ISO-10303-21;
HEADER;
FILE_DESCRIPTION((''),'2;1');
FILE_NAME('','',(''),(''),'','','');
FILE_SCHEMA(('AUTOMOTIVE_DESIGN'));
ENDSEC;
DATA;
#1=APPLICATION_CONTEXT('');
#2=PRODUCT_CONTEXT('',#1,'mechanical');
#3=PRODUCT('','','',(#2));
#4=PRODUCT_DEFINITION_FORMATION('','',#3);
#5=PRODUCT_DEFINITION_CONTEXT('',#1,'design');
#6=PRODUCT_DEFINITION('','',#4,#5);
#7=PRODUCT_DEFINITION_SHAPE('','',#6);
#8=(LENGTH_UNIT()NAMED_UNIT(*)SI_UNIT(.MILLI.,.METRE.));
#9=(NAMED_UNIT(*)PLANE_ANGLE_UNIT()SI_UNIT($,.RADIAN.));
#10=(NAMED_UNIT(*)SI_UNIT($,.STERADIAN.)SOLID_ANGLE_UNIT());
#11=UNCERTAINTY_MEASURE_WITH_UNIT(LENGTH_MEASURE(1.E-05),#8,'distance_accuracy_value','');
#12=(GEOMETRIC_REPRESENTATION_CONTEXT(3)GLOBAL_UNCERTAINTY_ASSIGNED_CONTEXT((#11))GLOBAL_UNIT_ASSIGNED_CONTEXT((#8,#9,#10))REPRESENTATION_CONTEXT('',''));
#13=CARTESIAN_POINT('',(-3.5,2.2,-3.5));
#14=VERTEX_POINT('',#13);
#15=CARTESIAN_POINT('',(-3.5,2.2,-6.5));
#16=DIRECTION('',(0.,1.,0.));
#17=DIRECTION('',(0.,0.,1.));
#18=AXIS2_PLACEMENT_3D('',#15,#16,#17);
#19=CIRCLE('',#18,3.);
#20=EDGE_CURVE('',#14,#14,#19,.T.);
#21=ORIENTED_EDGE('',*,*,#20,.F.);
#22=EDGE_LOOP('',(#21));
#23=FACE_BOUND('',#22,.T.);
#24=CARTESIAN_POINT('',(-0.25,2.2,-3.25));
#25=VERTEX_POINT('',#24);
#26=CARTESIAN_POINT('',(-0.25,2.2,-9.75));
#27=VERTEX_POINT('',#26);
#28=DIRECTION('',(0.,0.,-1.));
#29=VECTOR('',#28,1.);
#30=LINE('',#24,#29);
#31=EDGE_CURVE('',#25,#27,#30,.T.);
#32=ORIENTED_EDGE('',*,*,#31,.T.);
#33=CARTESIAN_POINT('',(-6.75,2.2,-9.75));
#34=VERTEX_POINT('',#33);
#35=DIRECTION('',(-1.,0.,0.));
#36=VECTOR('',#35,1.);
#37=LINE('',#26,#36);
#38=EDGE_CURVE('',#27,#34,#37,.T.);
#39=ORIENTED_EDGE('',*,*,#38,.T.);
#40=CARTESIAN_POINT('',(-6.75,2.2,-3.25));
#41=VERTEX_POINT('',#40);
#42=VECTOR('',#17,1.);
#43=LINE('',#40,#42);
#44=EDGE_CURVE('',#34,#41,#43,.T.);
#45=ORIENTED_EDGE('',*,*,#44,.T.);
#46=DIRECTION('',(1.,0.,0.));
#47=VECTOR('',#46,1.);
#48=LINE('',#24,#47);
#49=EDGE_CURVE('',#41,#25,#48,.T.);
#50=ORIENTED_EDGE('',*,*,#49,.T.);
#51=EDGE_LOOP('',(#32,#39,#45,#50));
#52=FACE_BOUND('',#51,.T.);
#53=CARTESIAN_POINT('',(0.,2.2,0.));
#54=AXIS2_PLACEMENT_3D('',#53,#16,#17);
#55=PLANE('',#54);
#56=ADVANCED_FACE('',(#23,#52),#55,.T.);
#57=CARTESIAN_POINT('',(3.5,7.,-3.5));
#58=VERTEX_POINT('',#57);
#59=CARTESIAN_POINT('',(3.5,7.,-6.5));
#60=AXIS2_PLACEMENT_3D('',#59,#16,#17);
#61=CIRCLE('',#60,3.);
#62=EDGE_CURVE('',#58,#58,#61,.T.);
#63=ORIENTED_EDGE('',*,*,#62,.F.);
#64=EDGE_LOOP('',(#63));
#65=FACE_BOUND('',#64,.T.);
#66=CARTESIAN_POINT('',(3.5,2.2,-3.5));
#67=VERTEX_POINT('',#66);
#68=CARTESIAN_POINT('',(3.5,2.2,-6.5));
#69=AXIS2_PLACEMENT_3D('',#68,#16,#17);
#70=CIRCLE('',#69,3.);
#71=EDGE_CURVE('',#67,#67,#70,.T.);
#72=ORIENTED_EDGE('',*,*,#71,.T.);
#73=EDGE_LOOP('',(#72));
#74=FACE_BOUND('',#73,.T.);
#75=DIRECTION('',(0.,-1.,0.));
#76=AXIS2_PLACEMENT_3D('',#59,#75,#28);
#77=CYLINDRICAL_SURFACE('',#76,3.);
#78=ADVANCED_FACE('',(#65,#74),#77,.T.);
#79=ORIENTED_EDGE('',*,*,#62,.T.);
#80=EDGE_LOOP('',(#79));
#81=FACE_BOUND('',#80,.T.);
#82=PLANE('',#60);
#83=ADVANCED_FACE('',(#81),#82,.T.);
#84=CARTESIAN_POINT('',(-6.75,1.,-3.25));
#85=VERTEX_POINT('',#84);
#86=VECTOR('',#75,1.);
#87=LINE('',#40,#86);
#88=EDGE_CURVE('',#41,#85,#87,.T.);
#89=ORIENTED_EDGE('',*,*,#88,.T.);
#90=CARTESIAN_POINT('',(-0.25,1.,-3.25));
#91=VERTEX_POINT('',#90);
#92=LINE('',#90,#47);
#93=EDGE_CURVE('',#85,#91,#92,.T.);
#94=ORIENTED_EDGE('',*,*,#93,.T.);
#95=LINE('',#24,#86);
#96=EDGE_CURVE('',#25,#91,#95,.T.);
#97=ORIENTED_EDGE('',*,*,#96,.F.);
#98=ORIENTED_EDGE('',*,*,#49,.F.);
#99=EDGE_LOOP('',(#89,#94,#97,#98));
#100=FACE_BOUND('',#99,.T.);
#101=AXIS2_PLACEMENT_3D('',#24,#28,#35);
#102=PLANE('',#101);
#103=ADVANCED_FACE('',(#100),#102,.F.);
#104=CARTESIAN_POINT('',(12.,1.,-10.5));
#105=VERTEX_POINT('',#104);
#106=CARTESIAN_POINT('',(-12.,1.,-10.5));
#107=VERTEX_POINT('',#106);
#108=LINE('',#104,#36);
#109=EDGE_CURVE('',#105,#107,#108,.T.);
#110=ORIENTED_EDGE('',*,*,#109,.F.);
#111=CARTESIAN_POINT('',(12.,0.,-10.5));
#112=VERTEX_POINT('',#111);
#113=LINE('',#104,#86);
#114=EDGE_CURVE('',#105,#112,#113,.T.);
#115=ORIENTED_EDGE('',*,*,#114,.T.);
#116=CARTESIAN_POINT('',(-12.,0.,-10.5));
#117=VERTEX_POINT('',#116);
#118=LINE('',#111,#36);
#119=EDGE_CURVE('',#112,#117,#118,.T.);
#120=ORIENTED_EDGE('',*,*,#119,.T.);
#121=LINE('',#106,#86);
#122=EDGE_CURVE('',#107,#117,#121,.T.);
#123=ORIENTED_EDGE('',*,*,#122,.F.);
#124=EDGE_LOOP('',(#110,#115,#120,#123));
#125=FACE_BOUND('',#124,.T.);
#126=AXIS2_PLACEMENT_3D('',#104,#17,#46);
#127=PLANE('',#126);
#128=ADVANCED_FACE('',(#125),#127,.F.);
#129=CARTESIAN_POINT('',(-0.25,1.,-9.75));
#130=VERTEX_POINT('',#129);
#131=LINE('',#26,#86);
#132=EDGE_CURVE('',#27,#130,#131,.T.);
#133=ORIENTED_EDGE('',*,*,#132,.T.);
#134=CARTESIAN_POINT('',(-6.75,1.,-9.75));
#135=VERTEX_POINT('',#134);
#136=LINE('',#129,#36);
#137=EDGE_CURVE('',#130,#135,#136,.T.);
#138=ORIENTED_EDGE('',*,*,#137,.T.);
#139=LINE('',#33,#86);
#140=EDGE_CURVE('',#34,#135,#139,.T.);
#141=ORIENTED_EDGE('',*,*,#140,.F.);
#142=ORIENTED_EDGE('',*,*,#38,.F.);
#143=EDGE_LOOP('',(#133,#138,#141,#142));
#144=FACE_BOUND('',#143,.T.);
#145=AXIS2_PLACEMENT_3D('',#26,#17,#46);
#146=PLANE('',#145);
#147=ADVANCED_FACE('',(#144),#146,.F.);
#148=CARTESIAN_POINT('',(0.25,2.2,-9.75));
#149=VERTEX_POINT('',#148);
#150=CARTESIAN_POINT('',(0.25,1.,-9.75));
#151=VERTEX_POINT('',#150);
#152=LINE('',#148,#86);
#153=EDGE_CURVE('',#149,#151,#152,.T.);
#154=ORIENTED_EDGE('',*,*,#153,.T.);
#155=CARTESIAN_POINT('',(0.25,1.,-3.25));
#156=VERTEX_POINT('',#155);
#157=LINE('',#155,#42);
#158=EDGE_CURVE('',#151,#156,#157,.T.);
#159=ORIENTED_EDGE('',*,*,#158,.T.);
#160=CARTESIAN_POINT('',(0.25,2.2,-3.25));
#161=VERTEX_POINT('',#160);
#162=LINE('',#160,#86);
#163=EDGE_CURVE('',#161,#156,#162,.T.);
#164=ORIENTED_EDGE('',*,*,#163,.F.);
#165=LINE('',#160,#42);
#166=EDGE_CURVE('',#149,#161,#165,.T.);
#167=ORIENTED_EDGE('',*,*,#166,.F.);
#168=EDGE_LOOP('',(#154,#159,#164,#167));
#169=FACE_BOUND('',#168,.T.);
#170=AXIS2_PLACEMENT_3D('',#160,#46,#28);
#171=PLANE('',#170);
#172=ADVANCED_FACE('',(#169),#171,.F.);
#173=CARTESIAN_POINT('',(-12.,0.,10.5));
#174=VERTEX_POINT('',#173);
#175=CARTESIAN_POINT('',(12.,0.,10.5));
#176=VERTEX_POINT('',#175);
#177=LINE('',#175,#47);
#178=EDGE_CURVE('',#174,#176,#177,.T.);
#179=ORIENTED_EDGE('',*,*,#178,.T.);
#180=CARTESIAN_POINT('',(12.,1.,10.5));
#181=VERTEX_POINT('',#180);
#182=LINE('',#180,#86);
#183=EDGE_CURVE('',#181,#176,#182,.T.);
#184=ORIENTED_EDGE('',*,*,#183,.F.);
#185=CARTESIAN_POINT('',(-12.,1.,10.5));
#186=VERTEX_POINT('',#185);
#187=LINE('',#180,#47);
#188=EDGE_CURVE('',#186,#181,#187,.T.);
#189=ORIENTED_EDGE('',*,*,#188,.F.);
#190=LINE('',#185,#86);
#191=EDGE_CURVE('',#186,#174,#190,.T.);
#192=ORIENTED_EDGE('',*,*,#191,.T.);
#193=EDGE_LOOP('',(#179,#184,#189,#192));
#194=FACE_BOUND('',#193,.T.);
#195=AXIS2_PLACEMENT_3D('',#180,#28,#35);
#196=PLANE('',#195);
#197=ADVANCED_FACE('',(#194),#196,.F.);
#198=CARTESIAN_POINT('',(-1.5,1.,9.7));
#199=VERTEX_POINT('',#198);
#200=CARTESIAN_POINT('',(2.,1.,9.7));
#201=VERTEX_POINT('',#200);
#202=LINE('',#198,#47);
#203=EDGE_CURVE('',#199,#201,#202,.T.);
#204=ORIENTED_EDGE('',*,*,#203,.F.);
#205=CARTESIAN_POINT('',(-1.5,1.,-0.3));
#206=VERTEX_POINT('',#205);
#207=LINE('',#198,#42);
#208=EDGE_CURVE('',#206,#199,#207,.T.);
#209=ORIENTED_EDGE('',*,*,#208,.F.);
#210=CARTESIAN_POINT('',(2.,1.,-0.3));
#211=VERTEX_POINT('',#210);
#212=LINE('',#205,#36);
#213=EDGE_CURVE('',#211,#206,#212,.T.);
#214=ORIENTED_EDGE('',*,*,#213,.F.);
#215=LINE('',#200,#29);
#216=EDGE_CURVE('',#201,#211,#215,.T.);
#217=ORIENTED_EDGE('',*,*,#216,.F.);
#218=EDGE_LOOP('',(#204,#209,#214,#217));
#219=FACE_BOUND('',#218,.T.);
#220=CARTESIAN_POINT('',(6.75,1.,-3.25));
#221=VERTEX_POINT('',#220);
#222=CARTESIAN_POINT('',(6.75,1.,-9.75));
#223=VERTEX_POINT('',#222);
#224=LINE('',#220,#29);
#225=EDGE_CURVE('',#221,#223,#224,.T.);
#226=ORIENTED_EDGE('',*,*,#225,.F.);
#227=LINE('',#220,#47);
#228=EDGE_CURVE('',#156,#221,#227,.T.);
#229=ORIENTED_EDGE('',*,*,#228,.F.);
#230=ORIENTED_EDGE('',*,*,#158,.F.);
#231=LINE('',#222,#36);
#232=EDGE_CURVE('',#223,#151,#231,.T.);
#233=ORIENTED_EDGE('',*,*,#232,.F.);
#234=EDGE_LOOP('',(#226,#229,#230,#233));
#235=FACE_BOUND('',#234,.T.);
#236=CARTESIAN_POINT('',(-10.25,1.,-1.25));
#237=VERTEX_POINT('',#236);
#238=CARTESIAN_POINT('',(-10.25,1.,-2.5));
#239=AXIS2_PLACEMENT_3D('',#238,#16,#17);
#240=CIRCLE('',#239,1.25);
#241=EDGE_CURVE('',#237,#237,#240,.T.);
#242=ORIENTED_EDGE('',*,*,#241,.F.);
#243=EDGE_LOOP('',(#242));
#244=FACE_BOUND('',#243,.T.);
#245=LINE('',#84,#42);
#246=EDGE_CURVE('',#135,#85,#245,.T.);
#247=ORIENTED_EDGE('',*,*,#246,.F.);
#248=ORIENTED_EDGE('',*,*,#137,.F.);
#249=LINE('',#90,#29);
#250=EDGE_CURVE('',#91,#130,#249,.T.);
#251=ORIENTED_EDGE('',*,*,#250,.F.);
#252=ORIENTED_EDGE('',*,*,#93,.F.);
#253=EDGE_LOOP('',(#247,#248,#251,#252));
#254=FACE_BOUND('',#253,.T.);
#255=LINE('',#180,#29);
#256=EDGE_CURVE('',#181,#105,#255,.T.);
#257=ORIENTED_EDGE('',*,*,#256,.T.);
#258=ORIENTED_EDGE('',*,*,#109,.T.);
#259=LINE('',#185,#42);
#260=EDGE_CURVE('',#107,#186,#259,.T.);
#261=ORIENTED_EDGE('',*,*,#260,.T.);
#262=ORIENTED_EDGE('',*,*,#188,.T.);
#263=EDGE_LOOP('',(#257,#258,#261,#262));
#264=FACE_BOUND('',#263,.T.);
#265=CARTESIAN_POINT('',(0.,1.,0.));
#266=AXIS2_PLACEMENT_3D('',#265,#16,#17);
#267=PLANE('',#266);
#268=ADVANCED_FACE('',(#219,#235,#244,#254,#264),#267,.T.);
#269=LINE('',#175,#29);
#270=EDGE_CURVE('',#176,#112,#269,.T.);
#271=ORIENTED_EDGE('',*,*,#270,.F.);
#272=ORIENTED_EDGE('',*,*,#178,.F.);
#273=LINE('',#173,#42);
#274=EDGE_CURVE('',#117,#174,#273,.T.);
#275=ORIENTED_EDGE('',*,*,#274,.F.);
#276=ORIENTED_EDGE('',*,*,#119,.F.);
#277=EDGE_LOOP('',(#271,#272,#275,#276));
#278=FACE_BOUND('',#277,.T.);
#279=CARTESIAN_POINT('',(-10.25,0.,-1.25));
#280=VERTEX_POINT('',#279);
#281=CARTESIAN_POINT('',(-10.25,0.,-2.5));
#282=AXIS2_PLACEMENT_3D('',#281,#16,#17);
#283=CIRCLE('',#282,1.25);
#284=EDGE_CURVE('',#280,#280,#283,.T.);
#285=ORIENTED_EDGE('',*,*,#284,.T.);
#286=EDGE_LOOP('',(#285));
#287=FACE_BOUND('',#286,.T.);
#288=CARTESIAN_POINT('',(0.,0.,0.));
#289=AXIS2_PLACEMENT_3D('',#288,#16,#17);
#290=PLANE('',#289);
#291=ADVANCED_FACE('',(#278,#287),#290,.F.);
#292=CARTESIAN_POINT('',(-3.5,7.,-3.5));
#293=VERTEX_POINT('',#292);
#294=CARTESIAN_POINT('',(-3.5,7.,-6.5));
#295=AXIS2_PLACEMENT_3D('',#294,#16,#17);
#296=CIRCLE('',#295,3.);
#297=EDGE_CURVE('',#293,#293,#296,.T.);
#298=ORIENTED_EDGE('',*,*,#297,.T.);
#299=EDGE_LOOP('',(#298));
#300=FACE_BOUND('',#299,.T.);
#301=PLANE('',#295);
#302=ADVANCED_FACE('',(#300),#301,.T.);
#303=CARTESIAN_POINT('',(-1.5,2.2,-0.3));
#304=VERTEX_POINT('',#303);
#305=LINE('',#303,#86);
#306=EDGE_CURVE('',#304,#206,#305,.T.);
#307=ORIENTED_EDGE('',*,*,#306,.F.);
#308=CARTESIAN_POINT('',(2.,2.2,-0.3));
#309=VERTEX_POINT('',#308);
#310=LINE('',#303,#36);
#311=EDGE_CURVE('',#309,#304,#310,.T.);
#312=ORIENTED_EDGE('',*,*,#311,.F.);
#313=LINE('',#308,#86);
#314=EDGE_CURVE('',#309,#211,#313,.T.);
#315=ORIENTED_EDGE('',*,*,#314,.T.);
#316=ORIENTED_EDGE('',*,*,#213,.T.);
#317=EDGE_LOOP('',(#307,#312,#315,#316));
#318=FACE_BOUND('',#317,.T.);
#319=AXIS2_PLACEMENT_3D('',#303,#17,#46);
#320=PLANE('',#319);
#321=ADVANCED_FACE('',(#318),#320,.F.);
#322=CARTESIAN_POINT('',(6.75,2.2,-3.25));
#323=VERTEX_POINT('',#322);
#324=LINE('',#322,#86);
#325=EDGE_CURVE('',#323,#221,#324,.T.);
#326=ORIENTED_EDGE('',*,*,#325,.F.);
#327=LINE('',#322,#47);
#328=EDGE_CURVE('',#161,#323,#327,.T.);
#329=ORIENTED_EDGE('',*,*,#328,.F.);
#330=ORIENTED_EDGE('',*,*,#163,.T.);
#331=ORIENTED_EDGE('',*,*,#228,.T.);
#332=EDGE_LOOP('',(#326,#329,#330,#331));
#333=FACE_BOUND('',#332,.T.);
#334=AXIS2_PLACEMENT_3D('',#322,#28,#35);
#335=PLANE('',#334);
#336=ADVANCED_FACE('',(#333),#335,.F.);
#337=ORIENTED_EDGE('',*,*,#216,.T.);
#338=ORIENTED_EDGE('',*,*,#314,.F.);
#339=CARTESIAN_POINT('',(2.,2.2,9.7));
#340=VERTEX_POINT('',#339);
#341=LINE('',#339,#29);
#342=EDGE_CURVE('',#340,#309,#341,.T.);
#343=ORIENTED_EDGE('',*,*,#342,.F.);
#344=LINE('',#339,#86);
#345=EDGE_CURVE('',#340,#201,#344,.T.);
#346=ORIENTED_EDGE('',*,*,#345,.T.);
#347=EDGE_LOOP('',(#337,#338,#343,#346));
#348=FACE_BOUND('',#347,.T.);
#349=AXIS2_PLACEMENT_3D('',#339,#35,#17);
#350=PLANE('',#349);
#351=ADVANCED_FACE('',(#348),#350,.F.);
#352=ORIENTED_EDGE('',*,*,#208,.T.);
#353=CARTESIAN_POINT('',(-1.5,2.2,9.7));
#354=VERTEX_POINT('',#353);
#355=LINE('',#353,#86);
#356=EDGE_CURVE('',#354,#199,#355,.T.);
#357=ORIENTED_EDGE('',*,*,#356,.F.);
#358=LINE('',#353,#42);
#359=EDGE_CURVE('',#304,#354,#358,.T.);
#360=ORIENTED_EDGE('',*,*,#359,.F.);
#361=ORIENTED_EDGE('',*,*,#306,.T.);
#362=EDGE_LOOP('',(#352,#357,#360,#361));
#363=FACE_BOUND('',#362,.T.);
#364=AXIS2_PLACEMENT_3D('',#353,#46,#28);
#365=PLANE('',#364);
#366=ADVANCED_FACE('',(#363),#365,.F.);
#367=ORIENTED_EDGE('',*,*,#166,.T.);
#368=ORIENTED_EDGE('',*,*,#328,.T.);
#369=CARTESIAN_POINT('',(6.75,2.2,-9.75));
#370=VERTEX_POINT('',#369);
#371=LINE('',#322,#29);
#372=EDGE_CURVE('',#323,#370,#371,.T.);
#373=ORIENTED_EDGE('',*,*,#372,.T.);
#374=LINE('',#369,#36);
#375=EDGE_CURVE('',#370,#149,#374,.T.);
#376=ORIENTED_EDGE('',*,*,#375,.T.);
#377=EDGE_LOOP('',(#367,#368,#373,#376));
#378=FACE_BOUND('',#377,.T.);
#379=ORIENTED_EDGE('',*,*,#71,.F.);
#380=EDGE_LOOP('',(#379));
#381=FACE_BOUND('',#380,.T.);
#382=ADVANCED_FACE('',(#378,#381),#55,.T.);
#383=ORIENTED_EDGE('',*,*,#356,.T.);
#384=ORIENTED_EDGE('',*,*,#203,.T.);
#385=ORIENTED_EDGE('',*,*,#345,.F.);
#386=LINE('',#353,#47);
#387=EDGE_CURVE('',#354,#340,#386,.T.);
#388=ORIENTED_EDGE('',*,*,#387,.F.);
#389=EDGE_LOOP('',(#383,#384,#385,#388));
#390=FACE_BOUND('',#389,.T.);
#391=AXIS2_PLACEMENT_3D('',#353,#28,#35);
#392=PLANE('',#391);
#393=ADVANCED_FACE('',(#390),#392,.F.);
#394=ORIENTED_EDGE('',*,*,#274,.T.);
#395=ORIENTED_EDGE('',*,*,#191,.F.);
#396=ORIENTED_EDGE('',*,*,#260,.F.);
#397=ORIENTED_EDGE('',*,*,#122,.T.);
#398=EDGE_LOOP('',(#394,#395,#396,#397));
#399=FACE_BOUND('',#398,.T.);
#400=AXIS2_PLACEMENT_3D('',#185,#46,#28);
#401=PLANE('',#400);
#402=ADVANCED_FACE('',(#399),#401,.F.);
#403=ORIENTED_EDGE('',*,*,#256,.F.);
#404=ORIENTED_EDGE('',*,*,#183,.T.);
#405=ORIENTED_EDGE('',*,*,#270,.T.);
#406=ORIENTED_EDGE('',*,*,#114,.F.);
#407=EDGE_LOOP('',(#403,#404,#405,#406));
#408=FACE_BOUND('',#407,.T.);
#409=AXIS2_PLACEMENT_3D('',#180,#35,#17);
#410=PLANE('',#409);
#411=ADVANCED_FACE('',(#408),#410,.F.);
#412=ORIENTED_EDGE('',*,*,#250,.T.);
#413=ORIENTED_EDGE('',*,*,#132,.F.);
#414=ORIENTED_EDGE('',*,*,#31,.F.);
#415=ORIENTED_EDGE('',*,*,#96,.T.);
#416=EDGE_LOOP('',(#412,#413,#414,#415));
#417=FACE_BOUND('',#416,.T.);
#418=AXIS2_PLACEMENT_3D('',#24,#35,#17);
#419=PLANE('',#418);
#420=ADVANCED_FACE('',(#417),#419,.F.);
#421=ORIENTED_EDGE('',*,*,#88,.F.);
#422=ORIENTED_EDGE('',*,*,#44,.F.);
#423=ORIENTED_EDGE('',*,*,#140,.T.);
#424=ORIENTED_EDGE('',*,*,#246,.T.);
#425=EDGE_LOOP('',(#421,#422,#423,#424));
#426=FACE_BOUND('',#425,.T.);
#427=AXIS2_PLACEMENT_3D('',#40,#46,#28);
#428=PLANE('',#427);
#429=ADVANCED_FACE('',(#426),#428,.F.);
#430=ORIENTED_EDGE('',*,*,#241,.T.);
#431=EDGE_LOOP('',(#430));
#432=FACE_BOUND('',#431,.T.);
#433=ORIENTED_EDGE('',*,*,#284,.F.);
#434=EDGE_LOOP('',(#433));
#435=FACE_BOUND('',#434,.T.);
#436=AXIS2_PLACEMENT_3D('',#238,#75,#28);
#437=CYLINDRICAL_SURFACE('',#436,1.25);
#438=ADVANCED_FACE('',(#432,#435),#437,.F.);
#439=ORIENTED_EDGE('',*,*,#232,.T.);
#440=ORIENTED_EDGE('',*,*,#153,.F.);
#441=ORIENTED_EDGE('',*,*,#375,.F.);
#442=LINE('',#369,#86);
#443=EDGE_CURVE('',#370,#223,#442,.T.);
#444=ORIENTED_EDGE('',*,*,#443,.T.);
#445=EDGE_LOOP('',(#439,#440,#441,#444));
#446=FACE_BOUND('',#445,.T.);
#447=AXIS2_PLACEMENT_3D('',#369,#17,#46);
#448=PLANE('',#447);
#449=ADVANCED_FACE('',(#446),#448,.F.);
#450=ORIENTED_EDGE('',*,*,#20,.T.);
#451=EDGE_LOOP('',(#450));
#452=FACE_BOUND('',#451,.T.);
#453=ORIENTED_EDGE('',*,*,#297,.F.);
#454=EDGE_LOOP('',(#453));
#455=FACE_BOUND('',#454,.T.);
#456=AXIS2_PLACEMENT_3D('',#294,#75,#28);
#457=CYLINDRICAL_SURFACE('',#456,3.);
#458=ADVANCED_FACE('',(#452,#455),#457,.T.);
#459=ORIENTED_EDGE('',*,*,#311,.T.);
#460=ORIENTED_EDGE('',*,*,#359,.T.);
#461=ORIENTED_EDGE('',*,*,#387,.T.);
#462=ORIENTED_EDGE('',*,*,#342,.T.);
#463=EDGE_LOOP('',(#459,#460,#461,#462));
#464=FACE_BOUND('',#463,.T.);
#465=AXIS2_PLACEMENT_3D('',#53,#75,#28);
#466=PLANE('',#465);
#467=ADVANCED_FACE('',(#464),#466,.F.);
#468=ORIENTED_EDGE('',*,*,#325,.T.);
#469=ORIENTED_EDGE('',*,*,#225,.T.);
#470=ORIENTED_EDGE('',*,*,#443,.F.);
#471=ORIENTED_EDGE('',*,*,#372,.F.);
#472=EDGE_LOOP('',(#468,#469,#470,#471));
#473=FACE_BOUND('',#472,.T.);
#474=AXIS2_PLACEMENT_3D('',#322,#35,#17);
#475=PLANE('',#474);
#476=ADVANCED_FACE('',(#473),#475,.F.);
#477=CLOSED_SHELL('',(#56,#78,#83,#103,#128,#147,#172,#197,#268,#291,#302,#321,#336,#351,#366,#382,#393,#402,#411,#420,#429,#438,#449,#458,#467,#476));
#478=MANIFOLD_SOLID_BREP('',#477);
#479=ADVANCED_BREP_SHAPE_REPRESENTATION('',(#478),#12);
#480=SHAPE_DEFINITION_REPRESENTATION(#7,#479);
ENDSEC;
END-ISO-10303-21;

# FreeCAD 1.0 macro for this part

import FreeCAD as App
import Part
import Sketcher

V = App.Vector
Q = App.Units.Quantity


def add_polygon(sketch, points):
    """Adds a closed chain of lines whose ends are joined by coincident constraints."""
    first, n = sketch.GeometryCount, len(points)
    for a, b in zip(points, points[1:] + points[:1]):
        sketch.addGeometry(Part.LineSegment(App.Vector(*a, 0), App.Vector(*b, 0)), False)
    for i in range(n):
        sketch.addConstraint(Sketcher.Constraint("Coincident", first + i, 2, first + (i + 1) % n, 1))

doc = App.newDocument("Part")
params = doc.addObject("Spreadsheet::Sheet", "Params")
for row, (alias, value) in enumerate([
    ("sketch1_diameter", "2.5 mm"),
    ("sketch1_width", "24 mm"),
    ("sketch1_height", "21 mm"),
    ("pad1_length", "1 mm"),
    ("sketch2_diameter", "6 mm"),
    ("pad2_length", "6 mm"),
    ("sketch3_height", "10 mm"),
    ("sketch3_width", "6.5 mm"),
    ("sketch3_width2", "3.5 mm"),
    ("pad3_length", "1.2 mm"),
], start=1):
    params.set(f"A{row}", alias)
    params.set(f"B{row}", "=" + value)
    params.setAlias(f"B{row}", alias)

body = doc.addObject("PartDesign::Body", "Body")

# Sketch on XZ plane
sketch1 = body.newObject("Sketcher::SketchObject", "Sketch")
sketch1.AttachmentSupport = (doc.getObject("XZ_Plane"), [""])
sketch1.MapMode = "FlatFace"
add_polygon(sketch1, [(-12, -10.5), (-12, 10.5), (12, 10.5), (12, -10.5)])  # lines 0-3
sketch1.addGeometry(Part.Circle(V(-10.2, -2.5, 0), V(0, 0, 1), 1.2), False)  # 4
sketch1.addConstraint([
    Sketcher.Constraint("Vertical", 0),
    Sketcher.Constraint("Horizontal", 1),
    Sketcher.Constraint("Vertical", 2),
    Sketcher.Constraint("Horizontal", 3),
    Sketcher.Constraint("Symmetric", 0, 2, 2, 2, -1, 1),
    Sketcher.Constraint("Diameter", 4, Q("2.5 mm")),
    Sketcher.Constraint("DistanceX", 1, 1, 1, 2, Q("24 mm")),
    Sketcher.Constraint("DistanceY", 0, 1, 0, 2, Q("21 mm")),
    Sketcher.Constraint("DistanceY", 4, 3, 0, 2, Q("13 mm")),
    Sketcher.Constraint("DistanceX", 4, 3, -1, 1, Q("10.25 mm")),
])
sketch1.setExpression("Constraints[9]", "Params.sketch1_diameter")
sketch1.setExpression("Constraints[10]", "Params.sketch1_width")
sketch1.setExpression("Constraints[11]", "Params.sketch1_height")
pad1 = body.newObject("PartDesign::Pad", "Pad")
pad1.Profile = sketch1
pad1.setExpression("Length", "Params.pad1_length")
pad1.Reversed = True

# Sketch on XZ plane
sketch2 = body.newObject("Sketcher::SketchObject", "Sketch001")
sketch2.AttachmentSupport = (doc.getObject("XZ_Plane"), [""])
sketch2.MapMode = "FlatFace"
sketch2.AttachmentOffset = App.Placement(V(0, 0, -1), App.Rotation())
sketch2.addGeometry([
    Part.Circle(V(3.5, -6.5, 0), V(0, 0, 1), 3),
    Part.Circle(V(-3.5, -6.5, 0), V(0, 0, 1), 3),
], False)
sketch2.addConstraint([
    Sketcher.Constraint("Equal", 0, 1),
    Sketcher.Constraint("Symmetric", 0, 3, 1, 3, -2),
    Sketcher.Constraint("Diameter", 0, Q("6 mm")),
    Sketcher.Constraint("DistanceX", 1, 3, 0, 3, Q("7 mm")),
    Sketcher.Constraint("DistanceY", 0, 3, -1, 1, Q("6.5 mm")),
])
sketch2.setExpression("Constraints[2]", "Params.sketch2_diameter")
pad2 = body.newObject("PartDesign::Pad", "Pad001")
pad2.Profile = sketch2
pad2.setExpression("Length", "Params.pad2_length")
pad2.Reversed = True

# Sketch on XZ plane
sketch3 = body.newObject("Sketcher::SketchObject", "Sketch002")
sketch3.AttachmentSupport = (doc.getObject("XZ_Plane"), [""])
sketch3.MapMode = "FlatFace"
sketch3.AttachmentOffset = App.Placement(V(0, 0, -1), App.Rotation())
add_polygon(sketch3, [(-6.8, -9.8), (-6.8, -3.2), (-0.2, -3.2), (-0.2, -9.8)])  # lines 0-3
add_polygon(sketch3, [(0.2, -9.8), (0.2, -3.2), (6.8, -3.2), (6.8, -9.8)])  # lines 4-7
add_polygon(sketch3, [(-1.5, -0.3), (-1.5, 9.7), (2, 9.7), (2, -0.3)])  # lines 8-11
sketch3.addConstraint([
    Sketcher.Constraint("Vertical", 0),
    Sketcher.Constraint("Horizontal", 1),
    Sketcher.Constraint("Vertical", 2),
    Sketcher.Constraint("Horizontal", 3),
    Sketcher.Constraint("Vertical", 4),
    Sketcher.Constraint("Horizontal", 5),
    Sketcher.Constraint("Vertical", 6),
    Sketcher.Constraint("Horizontal", 7),
    Sketcher.Constraint("Vertical", 8),
    Sketcher.Constraint("Horizontal", 9),
    Sketcher.Constraint("Vertical", 10),
    Sketcher.Constraint("Horizontal", 11),
    Sketcher.Constraint("Symmetric", 1, 2, 4, 2, -2),
    Sketcher.Constraint("Symmetric", 3, 2, 6, 2, -2),
    Sketcher.Constraint("Equal", 7, 0),
    Sketcher.Constraint("DistanceY", 8, 1, 8, 2, Q("10 mm")),
    Sketcher.Constraint("DistanceX", 1, 1, 1, 2, Q("6.5 mm")),
    Sketcher.Constraint("DistanceX", 9, 1, 9, 2, Q("3.5 mm")),
    Sketcher.Constraint("DistanceX", -1, 1, 9, 2, Q("2 mm")),
    Sketcher.Constraint("DistanceX", 0, 2, 4, 2, Q("7 mm")),
    Sketcher.Constraint("DistanceY", -1, 1, 8, 2, Q("9.7 mm")),
    Sketcher.Constraint("DistanceY", 0, 2, -1, 1, Q("3.25 mm")),
])
sketch3.setExpression("Constraints[27]", "Params.sketch3_height")
sketch3.setExpression("Constraints[28]", "Params.sketch3_width")
sketch3.setExpression("Constraints[29]", "Params.sketch3_width2")
pad3 = body.newObject("PartDesign::Pad", "Pad002")
pad3.Profile = sketch3
pad3.setExpression("Length", "Params.pad3_length")
pad3.Reversed = True

doc.recompute()
